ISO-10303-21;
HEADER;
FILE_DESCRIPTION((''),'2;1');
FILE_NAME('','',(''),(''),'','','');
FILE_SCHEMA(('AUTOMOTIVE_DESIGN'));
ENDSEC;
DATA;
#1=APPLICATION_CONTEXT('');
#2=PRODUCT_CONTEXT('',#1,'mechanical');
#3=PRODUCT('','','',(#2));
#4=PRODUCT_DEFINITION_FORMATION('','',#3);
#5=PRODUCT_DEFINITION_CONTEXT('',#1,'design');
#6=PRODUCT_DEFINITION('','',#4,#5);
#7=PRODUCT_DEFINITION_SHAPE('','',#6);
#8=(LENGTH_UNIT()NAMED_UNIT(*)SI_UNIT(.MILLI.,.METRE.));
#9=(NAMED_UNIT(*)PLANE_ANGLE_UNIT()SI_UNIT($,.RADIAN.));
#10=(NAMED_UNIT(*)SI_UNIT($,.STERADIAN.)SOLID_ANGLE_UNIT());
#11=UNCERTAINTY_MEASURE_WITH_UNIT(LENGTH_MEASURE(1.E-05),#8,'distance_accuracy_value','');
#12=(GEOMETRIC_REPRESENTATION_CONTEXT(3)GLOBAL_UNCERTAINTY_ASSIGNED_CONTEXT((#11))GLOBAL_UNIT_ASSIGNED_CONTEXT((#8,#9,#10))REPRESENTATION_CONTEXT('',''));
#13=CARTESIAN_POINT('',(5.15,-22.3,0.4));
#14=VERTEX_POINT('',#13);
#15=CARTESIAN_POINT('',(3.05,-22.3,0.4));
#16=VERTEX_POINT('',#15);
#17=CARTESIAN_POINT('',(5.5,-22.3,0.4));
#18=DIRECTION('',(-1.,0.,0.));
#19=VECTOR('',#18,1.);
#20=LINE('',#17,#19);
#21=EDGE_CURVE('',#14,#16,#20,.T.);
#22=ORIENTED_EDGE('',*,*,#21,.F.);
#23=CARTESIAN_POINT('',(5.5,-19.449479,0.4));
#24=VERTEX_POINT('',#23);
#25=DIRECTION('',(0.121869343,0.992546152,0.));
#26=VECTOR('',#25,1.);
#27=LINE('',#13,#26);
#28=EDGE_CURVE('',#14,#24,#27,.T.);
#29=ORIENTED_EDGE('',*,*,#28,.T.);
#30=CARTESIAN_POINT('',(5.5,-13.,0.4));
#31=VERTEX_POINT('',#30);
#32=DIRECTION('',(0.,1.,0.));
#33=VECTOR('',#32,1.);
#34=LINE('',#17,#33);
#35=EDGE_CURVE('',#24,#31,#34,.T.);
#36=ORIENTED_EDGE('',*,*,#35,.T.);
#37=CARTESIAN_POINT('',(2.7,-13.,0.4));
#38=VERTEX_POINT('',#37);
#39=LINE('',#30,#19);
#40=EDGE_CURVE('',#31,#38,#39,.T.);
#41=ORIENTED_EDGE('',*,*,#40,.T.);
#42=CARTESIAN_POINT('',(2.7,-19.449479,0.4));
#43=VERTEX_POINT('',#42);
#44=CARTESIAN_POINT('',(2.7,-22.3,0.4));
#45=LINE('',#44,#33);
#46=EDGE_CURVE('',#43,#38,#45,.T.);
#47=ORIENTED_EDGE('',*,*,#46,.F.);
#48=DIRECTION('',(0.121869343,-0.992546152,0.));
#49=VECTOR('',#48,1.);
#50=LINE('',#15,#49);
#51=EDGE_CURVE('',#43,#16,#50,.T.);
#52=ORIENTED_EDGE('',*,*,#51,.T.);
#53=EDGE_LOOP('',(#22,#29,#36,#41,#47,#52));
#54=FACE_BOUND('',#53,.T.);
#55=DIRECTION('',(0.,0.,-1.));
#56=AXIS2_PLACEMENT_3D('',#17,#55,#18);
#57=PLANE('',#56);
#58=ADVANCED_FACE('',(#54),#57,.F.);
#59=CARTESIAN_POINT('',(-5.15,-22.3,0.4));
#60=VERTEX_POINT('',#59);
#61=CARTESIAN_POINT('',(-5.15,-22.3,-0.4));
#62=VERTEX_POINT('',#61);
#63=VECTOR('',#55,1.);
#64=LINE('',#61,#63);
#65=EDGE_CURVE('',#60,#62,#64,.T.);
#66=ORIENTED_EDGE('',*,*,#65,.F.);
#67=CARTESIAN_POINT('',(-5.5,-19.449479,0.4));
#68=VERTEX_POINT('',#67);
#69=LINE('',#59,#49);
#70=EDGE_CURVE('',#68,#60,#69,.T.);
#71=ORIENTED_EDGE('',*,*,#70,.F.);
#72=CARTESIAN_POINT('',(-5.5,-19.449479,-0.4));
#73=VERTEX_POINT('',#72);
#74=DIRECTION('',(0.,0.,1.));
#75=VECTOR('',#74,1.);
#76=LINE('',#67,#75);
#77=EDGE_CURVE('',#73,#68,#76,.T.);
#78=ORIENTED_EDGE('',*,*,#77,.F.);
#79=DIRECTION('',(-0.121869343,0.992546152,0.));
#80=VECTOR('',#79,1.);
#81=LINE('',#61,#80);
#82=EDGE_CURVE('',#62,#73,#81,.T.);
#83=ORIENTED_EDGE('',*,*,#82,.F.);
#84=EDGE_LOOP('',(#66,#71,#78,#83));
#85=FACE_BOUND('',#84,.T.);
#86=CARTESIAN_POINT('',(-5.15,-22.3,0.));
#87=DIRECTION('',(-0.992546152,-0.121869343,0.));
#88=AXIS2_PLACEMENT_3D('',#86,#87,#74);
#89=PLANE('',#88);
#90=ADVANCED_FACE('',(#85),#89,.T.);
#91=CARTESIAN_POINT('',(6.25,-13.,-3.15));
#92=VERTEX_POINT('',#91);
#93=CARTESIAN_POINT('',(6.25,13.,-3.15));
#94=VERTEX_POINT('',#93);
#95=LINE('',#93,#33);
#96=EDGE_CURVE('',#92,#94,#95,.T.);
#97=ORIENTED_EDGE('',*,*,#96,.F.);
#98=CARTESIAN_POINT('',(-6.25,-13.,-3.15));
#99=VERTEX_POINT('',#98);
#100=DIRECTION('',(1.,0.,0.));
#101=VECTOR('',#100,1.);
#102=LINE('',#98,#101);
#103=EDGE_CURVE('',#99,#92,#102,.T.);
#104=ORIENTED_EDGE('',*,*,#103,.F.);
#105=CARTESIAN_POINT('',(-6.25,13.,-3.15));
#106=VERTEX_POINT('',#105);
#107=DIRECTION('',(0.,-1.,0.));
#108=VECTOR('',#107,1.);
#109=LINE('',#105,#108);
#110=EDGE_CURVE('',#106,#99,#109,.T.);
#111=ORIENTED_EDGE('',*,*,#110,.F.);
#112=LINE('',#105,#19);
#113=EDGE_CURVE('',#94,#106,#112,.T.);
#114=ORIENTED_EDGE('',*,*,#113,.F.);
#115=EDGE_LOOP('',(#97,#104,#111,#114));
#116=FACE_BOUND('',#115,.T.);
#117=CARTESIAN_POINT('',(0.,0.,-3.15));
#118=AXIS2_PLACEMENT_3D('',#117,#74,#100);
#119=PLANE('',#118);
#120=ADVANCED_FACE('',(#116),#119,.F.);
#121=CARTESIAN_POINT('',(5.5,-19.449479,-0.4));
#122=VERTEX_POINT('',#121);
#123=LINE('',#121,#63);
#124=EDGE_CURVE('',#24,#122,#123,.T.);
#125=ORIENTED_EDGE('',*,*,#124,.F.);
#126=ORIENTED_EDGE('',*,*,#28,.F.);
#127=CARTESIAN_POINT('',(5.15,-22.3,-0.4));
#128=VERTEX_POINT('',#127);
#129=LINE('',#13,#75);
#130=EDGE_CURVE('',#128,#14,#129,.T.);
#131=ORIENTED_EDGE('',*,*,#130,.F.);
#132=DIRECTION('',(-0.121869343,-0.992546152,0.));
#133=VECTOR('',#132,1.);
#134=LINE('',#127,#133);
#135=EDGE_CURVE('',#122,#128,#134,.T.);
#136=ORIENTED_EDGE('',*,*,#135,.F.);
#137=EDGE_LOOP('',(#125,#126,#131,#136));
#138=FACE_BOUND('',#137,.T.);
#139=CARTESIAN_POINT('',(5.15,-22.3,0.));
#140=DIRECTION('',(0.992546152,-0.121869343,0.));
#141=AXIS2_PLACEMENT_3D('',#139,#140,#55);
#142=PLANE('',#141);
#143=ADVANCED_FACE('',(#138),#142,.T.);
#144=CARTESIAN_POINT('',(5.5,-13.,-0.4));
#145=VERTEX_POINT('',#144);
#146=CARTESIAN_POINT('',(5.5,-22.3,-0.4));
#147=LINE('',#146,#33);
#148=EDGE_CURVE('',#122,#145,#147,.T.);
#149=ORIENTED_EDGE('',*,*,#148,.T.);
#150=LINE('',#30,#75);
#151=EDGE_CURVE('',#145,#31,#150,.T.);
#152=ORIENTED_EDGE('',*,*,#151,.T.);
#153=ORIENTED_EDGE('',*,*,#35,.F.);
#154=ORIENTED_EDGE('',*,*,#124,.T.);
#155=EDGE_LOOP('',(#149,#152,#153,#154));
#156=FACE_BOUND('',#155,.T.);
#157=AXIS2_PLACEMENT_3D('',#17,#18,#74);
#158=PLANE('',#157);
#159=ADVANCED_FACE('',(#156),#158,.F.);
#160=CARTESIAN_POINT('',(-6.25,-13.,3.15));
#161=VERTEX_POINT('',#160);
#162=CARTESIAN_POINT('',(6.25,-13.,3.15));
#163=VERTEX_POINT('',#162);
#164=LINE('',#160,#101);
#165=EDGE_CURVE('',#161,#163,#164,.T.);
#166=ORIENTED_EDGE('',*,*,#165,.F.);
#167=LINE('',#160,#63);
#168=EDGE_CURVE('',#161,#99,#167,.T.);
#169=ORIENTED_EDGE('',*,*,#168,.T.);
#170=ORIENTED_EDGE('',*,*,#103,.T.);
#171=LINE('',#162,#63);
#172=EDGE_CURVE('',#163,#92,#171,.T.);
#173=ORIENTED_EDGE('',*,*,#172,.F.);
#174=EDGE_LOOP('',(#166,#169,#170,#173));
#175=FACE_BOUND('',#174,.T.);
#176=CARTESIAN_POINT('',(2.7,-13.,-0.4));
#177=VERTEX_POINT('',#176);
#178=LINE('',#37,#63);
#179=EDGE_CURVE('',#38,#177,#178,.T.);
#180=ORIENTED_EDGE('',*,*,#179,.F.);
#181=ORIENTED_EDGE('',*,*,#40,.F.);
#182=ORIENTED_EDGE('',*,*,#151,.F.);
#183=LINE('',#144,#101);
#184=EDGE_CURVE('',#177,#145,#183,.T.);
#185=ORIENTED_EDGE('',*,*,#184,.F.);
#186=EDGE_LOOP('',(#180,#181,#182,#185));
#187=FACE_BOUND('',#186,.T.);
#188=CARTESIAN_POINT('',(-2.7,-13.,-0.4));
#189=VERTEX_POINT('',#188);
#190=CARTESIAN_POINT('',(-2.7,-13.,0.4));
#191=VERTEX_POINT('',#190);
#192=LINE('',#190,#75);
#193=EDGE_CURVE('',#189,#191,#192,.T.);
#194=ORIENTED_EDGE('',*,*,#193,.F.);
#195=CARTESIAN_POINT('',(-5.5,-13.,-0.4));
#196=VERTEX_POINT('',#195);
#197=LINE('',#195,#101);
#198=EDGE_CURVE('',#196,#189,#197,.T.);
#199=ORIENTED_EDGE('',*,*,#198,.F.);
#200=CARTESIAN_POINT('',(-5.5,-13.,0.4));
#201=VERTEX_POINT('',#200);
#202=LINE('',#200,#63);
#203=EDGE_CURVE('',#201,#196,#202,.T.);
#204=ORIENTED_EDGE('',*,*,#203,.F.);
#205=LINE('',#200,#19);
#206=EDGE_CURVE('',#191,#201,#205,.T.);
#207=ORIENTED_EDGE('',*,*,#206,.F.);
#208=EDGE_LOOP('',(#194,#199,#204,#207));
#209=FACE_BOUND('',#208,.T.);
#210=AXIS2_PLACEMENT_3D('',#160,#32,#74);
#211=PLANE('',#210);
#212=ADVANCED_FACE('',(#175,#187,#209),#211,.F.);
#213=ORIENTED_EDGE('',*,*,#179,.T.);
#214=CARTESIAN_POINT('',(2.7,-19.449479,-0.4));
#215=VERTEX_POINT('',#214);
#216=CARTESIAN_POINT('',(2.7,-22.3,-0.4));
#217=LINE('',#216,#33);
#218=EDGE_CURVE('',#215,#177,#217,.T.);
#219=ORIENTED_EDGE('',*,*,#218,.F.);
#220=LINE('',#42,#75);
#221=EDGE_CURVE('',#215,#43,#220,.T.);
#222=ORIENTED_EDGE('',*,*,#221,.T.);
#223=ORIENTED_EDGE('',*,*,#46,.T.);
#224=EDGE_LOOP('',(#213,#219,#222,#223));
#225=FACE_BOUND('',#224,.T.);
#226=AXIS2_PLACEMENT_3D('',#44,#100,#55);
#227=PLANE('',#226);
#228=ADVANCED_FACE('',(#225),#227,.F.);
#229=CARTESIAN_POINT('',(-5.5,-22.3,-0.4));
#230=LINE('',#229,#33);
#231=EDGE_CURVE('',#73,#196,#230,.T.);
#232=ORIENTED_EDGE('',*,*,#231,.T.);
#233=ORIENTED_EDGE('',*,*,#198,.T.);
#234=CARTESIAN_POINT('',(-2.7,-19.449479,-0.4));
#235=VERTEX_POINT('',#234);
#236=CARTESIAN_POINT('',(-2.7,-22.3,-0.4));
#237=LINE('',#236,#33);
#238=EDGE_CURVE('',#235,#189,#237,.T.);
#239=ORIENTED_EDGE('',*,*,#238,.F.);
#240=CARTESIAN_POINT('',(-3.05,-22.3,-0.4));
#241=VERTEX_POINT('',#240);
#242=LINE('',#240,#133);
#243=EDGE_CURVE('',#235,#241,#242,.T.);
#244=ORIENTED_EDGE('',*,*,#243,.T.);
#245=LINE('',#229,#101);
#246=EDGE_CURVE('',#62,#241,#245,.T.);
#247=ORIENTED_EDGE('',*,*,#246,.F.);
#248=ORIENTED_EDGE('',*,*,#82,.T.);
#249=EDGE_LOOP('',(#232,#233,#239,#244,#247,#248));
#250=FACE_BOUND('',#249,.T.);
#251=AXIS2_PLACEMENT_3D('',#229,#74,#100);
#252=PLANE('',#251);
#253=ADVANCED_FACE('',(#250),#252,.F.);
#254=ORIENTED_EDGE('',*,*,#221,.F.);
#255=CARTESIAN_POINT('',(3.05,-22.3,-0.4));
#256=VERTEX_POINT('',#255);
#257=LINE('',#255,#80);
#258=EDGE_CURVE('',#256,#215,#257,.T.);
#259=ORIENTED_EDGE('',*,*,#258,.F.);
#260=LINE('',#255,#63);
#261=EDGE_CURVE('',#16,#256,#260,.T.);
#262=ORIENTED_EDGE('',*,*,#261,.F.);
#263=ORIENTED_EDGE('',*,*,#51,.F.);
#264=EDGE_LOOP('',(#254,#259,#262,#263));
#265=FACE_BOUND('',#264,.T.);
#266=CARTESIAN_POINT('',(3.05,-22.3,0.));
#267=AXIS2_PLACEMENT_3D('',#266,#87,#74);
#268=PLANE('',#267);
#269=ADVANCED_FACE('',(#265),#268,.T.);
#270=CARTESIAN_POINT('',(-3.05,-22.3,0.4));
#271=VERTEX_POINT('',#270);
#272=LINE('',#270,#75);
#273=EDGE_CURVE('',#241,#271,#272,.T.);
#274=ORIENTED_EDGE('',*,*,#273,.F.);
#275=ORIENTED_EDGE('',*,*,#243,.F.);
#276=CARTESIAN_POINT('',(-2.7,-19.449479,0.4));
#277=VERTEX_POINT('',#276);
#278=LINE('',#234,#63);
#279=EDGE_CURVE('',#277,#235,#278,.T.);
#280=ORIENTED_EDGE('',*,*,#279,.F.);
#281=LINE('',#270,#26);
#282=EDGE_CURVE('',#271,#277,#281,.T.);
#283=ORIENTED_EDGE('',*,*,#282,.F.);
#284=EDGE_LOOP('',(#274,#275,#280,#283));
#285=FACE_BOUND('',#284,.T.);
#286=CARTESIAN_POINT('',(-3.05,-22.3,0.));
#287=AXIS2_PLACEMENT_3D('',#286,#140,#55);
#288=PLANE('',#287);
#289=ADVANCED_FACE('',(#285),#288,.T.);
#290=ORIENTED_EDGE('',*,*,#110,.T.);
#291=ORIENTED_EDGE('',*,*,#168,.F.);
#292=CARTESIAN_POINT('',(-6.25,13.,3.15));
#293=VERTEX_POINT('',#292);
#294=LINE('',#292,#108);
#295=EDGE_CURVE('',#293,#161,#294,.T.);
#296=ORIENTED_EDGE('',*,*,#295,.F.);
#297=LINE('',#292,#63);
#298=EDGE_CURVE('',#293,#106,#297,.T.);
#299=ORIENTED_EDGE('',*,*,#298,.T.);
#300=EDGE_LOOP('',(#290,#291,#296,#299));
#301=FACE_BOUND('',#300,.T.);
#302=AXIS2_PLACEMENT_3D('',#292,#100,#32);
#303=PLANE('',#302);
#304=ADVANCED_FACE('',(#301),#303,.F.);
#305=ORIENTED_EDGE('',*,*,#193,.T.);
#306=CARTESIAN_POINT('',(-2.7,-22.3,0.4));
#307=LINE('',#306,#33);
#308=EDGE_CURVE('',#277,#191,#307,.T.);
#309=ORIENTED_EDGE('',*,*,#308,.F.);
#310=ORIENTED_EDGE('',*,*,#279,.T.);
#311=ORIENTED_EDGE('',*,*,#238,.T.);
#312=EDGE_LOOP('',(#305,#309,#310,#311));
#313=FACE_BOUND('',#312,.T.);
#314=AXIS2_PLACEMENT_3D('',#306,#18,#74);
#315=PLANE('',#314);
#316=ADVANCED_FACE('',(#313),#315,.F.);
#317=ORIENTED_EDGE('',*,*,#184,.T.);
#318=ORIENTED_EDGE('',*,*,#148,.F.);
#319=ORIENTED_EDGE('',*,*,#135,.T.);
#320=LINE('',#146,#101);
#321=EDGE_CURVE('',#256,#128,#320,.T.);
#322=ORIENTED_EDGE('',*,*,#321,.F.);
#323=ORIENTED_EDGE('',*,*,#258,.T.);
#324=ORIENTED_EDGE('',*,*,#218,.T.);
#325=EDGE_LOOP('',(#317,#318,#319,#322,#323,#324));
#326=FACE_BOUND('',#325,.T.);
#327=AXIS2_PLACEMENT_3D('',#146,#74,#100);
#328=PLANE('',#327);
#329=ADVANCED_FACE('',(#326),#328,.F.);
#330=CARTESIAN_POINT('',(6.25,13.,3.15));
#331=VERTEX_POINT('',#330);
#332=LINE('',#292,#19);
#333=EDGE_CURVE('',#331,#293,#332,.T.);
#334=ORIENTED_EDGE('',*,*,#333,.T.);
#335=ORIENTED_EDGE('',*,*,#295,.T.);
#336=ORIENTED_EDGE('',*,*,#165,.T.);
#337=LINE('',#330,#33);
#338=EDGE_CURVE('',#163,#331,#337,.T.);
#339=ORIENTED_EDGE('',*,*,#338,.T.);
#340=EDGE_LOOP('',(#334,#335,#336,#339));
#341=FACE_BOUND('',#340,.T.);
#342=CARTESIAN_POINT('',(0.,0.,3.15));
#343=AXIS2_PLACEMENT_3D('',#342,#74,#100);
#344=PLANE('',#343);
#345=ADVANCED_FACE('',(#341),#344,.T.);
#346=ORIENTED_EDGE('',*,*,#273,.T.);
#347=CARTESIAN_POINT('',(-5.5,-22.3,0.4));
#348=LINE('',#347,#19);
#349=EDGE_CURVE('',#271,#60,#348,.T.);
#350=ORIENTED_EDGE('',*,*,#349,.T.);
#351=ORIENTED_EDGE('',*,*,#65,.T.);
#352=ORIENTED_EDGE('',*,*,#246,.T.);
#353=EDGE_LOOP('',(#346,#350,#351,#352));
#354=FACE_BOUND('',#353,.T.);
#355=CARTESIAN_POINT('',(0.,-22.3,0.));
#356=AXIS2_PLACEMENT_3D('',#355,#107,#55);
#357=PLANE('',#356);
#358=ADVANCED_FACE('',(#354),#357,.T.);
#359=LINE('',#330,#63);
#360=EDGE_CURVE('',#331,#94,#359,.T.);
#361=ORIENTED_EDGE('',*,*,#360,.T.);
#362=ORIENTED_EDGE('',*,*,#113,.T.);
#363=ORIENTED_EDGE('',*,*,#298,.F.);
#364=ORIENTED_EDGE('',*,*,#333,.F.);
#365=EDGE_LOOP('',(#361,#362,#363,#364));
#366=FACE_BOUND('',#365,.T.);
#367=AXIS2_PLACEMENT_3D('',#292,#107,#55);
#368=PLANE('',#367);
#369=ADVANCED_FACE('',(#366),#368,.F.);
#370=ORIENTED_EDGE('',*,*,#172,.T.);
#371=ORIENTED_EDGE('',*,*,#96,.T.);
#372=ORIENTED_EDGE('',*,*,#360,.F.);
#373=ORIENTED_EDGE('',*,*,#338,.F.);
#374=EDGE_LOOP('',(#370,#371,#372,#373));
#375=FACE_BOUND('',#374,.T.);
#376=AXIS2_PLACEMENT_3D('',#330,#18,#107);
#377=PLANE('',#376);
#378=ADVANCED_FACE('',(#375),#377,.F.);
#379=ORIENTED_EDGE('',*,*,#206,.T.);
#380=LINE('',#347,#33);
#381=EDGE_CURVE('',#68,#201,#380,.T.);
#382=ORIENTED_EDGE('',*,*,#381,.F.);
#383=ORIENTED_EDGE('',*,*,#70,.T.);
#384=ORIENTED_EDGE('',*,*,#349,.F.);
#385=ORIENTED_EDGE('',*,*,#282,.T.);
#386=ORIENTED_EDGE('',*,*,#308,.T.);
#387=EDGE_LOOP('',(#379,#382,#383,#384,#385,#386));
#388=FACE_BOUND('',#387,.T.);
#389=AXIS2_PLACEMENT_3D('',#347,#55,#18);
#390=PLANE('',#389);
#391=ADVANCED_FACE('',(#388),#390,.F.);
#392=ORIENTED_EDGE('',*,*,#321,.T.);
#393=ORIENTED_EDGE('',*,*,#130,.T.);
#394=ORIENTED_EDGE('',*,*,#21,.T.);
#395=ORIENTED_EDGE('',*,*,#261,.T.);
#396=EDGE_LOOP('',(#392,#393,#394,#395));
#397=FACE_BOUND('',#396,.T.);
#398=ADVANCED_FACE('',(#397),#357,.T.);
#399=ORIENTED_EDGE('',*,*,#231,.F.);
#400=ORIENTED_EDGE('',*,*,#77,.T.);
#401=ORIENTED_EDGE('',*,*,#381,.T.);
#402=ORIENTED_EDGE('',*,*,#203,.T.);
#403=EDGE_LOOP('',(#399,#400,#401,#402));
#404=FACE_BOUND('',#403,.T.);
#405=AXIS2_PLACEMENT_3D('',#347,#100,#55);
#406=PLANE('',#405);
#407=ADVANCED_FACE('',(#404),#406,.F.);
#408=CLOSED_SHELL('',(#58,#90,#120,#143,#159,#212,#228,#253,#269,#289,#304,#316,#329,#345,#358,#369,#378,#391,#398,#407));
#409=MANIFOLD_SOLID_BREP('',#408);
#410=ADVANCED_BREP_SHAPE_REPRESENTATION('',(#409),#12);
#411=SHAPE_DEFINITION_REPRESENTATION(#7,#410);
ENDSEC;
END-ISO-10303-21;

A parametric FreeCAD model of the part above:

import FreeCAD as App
import Part
import Sketcher
from FreeCAD import Vector
Q = App.Units.Quantity


def edges_at(feature, points):
    """Names of the edges that pass closest to the given points."""
    edges = feature.Shape.Edges
    near = lambda p: min(range(len(edges)), key=lambda i: edges[i].distToShape(Part.Vertex(*p))[0])
    return sorted({f"Edge{near(p) + 1}" for p in points})

doc = App.newDocument("Part")
params = doc.addObject("Spreadsheet::Sheet", "Params")
for row, (alias, value) in enumerate([
    ("sketch1_height", "26 mm"),
    ("sketch1_width", "12.5 mm"),
    ("pad1_length", "6.3 mm"),
    ("sketch2_width", "2.8 mm"),
    ("sketch2_height", "0.8 mm"),
    ("pad2_length", "9.3 mm"),
    ("chamfer_size", "0.35 mm"),
    ("chamfer_size2", "2.850521 mm"),
    ("chamfer2_size", "0.35 mm"),
    ("chamfer2_size2", "2.850521 mm"),
], start=1):
    params.set(f"A{row}", alias)
    params.set(f"B{row}", "=" + value)
    params.setAlias(f"B{row}", alias)

body = doc.addObject("PartDesign::Body", "Body")

# Sketch on XY plane
sketch1 = body.newObject("Sketcher::SketchObject", "Sketch")
sketch1.AttachmentSupport = (doc.getObject("XY_Plane"), [""])
sketch1.MapMode = "FlatFace"
sketch1.addGeometry(Part.LineSegment(Vector(-6, 13, 0), Vector(-6, -13, 0)), False)
sketch1.addGeometry(Part.LineSegment(Vector(-6, -13, 0), Vector(6, -13, 0)), False)
sketch1.addGeometry(Part.LineSegment(Vector(6, -13, 0), Vector(6, 13, 0)), False)
sketch1.addGeometry(Part.LineSegment(Vector(6, 13, 0), Vector(-6, 13, 0)), False)
sketch1.addConstraint(Sketcher.Constraint("Coincident", 0, 2, 1, 1))
sketch1.addConstraint(Sketcher.Constraint("Coincident", 1, 2, 2, 1))
sketch1.addConstraint(Sketcher.Constraint("Coincident", 2, 2, 3, 1))
sketch1.addConstraint(Sketcher.Constraint("Coincident", 3, 2, 0, 1))
sketch1.addConstraint(Sketcher.Constraint("Vertical", 0))
sketch1.addConstraint(Sketcher.Constraint("Horizontal", 1))
sketch1.addConstraint(Sketcher.Constraint("Vertical", 2))
sketch1.addConstraint(Sketcher.Constraint("Horizontal", 3))
sketch1.addConstraint(Sketcher.Constraint("Symmetric", 0, 2, 2, 2, -1, 1))
sketch1.addConstraint(Sketcher.Constraint("DistanceY", 0, 2, 0, 1, Q("26 mm")))
sketch1.addConstraint(Sketcher.Constraint("DistanceX", 1, 1, 1, 2, Q("12.5 mm")))
sketch1.setExpression("Constraints[9]", "Params.sketch1_height")
sketch1.setExpression("Constraints[10]", "Params.sketch1_width")
pad1 = body.newObject("PartDesign::Pad", "Pad")
pad1.Profile = sketch1
pad1.setExpression("Length", "Params.pad1_length")
pad1.Midplane = True

# Sketch on XZ plane
sketch2 = body.newObject("Sketcher::SketchObject", "Sketch001")
sketch2.AttachmentSupport = (doc.getObject("XZ_Plane"), [""])
sketch2.MapMode = "FlatFace"
sketch2.AttachmentOffset = App.Placement(Vector(0, 0, 13), App.Rotation())
sketch2.addGeometry(Part.LineSegment(Vector(2.7, 0.4, 0), Vector(2.7, -0.4, 0)), False)
sketch2.addGeometry(Part.LineSegment(Vector(2.7, -0.4, 0), Vector(5.5, -0.4, 0)), False)
sketch2.addGeometry(Part.LineSegment(Vector(5.5, -0.4, 0), Vector(5.5, 0.4, 0)), False)
sketch2.addGeometry(Part.LineSegment(Vector(5.5, 0.4, 0), Vector(2.7, 0.4, 0)), False)
sketch2.addGeometry(Part.LineSegment(Vector(-5.5, 0.4, 0), Vector(-5.5, -0.4, 0)), False)
sketch2.addGeometry(Part.LineSegment(Vector(-5.5, -0.4, 0), Vector(-2.7, -0.4, 0)), False)
sketch2.addGeometry(Part.LineSegment(Vector(-2.7, -0.4, 0), Vector(-2.7, 0.4, 0)), False)
sketch2.addGeometry(Part.LineSegment(Vector(-2.7, 0.4, 0), Vector(-5.5, 0.4, 0)), False)
sketch2.addConstraint(Sketcher.Constraint("Coincident", 0, 2, 1, 1))
sketch2.addConstraint(Sketcher.Constraint("Coincident", 1, 2, 2, 1))
sketch2.addConstraint(Sketcher.Constraint("Coincident", 2, 2, 3, 1))
sketch2.addConstraint(Sketcher.Constraint("Coincident", 3, 2, 0, 1))
sketch2.addConstraint(Sketcher.Constraint("Coincident", 4, 2, 5, 1))
sketch2.addConstraint(Sketcher.Constraint("Coincident", 5, 2, 6, 1))
sketch2.addConstraint(Sketcher.Constraint("Coincident", 6, 2, 7, 1))
sketch2.addConstraint(Sketcher.Constraint("Coincident", 7, 2, 4, 1))
sketch2.addConstraint(Sketcher.Constraint("Vertical", 0))
sketch2.addConstraint(Sketcher.Constraint("Horizontal", 1))
sketch2.addConstraint(Sketcher.Constraint("Vertical", 2))
sketch2.addConstraint(Sketcher.Constraint("Horizontal", 3))
sketch2.addConstraint(Sketcher.Constraint("Vertical", 4))
sketch2.addConstraint(Sketcher.Constraint("Horizontal", 5))
sketch2.addConstraint(Sketcher.Constraint("Vertical", 6))
sketch2.addConstraint(Sketcher.Constraint("Horizontal", 7))
sketch2.addConstraint(Sketcher.Constraint("Symmetric", 2, 2, 4, 2, -1, 1))
sketch2.addConstraint(Sketcher.Constraint("Symmetric", 0, 2, 6, 2, -1, 1))
sketch2.addConstraint(Sketcher.Constraint("Horizontal", 1, 2, 4, 2))
sketch2.addConstraint(Sketcher.Constraint("DistanceX", 1, 1, 1, 2, Q("2.8 mm")))
sketch2.addConstraint(Sketcher.Constraint("DistanceY", 0, 2, 0, 1, Q("0.8 mm")))
sketch2.addConstraint(Sketcher.Constraint("DistanceX", 4, 2, 1, 2, Q("11 mm")))
sketch2.setExpression("Constraints[19]", "Params.sketch2_width")
sketch2.setExpression("Constraints[20]", "Params.sketch2_height")
pad2 = body.newObject("PartDesign::Pad", "Pad001")
pad2.Profile = sketch2
pad2.setExpression("Length", "Params.pad2_length")
doc.recompute()

chamfer = body.newObject("PartDesign::Chamfer", "Chamfer")
chamfer.Base = (pad2, edges_at(pad2, [(-5.5, -22.3, 0), (-2.7, -22.3, 0)]))
chamfer.ChamferType = "Two distances"
chamfer.setExpression("Size", "Params.chamfer_size")
chamfer.setExpression("Size2", "Params.chamfer_size2")
chamfer.FlipDirection = True
doc.recompute()

chamfer2 = body.newObject("PartDesign::Chamfer", "Chamfer001")
chamfer2.Base = (chamfer, edges_at(chamfer, [(2.7, -22.3, 0), (5.5, -22.3, 0)]))
chamfer2.ChamferType = "Two distances"
chamfer2.setExpression("Size", "Params.chamfer2_size")
chamfer2.setExpression("Size2", "Params.chamfer2_size2")
chamfer2.FlipDirection = True

doc.recompute()
